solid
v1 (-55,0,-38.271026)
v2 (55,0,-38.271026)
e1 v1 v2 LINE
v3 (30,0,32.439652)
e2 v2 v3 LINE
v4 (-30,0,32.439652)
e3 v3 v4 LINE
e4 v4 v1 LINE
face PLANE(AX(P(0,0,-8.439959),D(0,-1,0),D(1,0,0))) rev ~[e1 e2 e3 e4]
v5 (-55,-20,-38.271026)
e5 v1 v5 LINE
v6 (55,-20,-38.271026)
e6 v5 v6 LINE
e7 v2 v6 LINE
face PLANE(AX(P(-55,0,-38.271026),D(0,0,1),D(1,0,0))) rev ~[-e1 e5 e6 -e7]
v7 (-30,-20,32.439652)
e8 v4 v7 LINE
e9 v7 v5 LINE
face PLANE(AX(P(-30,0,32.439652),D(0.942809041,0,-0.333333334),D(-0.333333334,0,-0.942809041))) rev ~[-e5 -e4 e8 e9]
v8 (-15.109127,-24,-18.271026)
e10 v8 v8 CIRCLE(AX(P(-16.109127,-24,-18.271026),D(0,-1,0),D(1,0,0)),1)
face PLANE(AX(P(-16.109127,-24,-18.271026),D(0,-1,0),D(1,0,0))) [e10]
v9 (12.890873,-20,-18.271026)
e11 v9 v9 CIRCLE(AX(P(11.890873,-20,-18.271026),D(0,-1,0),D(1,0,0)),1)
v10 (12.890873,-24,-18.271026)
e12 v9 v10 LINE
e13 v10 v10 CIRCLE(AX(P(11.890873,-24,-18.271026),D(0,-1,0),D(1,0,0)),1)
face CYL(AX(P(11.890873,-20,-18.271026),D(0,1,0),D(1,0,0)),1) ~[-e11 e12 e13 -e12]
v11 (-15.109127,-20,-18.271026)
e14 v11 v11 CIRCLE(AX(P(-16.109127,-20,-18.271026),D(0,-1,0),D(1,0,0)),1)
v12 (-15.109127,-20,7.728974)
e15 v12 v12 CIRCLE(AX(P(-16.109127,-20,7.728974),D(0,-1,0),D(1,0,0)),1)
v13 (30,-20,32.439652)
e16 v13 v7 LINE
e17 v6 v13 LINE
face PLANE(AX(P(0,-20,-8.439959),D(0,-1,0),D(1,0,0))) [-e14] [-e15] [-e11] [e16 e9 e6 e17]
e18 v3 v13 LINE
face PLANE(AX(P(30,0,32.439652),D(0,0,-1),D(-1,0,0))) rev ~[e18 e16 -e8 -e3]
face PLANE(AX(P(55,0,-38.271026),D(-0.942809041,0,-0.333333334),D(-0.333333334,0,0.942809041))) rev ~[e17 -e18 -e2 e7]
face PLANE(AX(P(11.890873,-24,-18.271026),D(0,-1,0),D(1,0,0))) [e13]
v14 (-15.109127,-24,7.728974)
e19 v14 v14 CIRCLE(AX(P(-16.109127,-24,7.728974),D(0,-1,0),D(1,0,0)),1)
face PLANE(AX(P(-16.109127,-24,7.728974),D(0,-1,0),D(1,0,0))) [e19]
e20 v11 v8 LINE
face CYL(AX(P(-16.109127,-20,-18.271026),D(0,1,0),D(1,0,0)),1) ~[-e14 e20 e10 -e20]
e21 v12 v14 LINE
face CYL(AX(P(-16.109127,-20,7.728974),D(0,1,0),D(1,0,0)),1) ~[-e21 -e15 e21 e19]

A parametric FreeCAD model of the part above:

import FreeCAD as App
import Part
import Sketcher
Q = App.Units.Quantity

doc = App.newDocument("Part")
body = doc.addObject("PartDesign::Body", "Body")

# Sketch on XZ plane
sketch1 = doc.addObject("Sketcher::SketchObject", "Sketch")
body.addObject(sketch1)
sketch1.AttachmentSupport = (doc.XZ_Plane, [""])
sketch1.MapMode = "FlatFace"
sketch1.addGeometry([
    Part.LineSegment(App.Vector(30, 32, 0), App.Vector(-30, 32, 0)),
    Part.LineSegment(App.Vector(-30, 32, 0), App.Vector(-55, -38, 0)),
    Part.LineSegment(App.Vector(-55, -38, 0), App.Vector(55, -38, 0)),
    Part.LineSegment(App.Vector(55, -38, 0), App.Vector(30, 32, 0)),
], False)
sketch1.addConstraint([
    Sketcher.Constraint("Coincident", 0, 2, 1, 1),
    Sketcher.Constraint("Coincident", 1, 2, 2, 1),
    Sketcher.Constraint("Coincident", 2, 2, 3, 1),
    Sketcher.Constraint("Coincident", 3, 2, 0, 1),
    Sketcher.Constraint("Horizontal", 0),
    Sketcher.Constraint("Horizontal", 2),
    Sketcher.Constraint("Equal", 1, 3),
    Sketcher.Constraint("DistanceX", 0, 2, 0, 1, Q("60 mm")),
    Sketcher.Constraint("DistanceX", 2, 1, 2, 2, Q("110 mm")),
    Sketcher.Constraint("Distance", 1, Q("75 mm")),
    Sketcher.Constraint("DistanceX", 0, 2, -1, 1, Q("30 mm")),
    Sketcher.Constraint("DistanceY", -1, 1, 0, 2, Q("32.439652 mm")),
])
pad1 = doc.addObject("PartDesign::Pad", "Pad")
body.addObject(pad1)
pad1.Profile = sketch1
pad1.Length = 20

# Sketch on XZ plane
sketch2 = doc.addObject("Sketcher::SketchObject", "Sketch001")
body.addObject(sketch2)
sketch2.AttachmentSupport = (doc.XZ_Plane, [""])
sketch2.MapMode = "FlatFace"
sketch2.AttachmentOffset = App.Placement(App.Vector(0, 0, 20), App.Rotation())
sketch2.addGeometry([
    Part.Circle(App.Vector(-16.1, 7.7, 0), App.Vector(0, 0, 1), 1),
    Part.Circle(App.Vector(-16.1, -18.3, 0), App.Vector(0, 0, 1), 1),
    Part.Circle(App.Vector(11.9, -18.3, 0), App.Vector(0, 0, 1), 1),
], False)
sketch2.addConstraint([
    Sketcher.Constraint("Equal", 0, 1),
    Sketcher.Constraint("Equal", 1, 2),
    Sketcher.Constraint("Horizontal", 1, 3, 2, 3),
    Sketcher.Constraint("Vertical", 0, 3, 1, 3),
    Sketcher.Constraint("Diameter", 0, Q("2 mm")),
    Sketcher.Constraint("DistanceY", 1, 3, 0, 3, Q("26 mm")),
    Sketcher.Constraint("DistanceX", 1, 3, 2, 3, Q("28 mm")),
    Sketcher.Constraint("DistanceX", 0, 3, -1, 1, Q("16.109127 mm")),
    Sketcher.Constraint("DistanceY", -1, 1, 0, 3, Q("7.728974 mm")),
])
pad2 = doc.addObject("PartDesign::Pad", "Pad001")
body.addObject(pad2)
pad2.Profile = sketch2
pad2.Length = 4

doc.recompute()
